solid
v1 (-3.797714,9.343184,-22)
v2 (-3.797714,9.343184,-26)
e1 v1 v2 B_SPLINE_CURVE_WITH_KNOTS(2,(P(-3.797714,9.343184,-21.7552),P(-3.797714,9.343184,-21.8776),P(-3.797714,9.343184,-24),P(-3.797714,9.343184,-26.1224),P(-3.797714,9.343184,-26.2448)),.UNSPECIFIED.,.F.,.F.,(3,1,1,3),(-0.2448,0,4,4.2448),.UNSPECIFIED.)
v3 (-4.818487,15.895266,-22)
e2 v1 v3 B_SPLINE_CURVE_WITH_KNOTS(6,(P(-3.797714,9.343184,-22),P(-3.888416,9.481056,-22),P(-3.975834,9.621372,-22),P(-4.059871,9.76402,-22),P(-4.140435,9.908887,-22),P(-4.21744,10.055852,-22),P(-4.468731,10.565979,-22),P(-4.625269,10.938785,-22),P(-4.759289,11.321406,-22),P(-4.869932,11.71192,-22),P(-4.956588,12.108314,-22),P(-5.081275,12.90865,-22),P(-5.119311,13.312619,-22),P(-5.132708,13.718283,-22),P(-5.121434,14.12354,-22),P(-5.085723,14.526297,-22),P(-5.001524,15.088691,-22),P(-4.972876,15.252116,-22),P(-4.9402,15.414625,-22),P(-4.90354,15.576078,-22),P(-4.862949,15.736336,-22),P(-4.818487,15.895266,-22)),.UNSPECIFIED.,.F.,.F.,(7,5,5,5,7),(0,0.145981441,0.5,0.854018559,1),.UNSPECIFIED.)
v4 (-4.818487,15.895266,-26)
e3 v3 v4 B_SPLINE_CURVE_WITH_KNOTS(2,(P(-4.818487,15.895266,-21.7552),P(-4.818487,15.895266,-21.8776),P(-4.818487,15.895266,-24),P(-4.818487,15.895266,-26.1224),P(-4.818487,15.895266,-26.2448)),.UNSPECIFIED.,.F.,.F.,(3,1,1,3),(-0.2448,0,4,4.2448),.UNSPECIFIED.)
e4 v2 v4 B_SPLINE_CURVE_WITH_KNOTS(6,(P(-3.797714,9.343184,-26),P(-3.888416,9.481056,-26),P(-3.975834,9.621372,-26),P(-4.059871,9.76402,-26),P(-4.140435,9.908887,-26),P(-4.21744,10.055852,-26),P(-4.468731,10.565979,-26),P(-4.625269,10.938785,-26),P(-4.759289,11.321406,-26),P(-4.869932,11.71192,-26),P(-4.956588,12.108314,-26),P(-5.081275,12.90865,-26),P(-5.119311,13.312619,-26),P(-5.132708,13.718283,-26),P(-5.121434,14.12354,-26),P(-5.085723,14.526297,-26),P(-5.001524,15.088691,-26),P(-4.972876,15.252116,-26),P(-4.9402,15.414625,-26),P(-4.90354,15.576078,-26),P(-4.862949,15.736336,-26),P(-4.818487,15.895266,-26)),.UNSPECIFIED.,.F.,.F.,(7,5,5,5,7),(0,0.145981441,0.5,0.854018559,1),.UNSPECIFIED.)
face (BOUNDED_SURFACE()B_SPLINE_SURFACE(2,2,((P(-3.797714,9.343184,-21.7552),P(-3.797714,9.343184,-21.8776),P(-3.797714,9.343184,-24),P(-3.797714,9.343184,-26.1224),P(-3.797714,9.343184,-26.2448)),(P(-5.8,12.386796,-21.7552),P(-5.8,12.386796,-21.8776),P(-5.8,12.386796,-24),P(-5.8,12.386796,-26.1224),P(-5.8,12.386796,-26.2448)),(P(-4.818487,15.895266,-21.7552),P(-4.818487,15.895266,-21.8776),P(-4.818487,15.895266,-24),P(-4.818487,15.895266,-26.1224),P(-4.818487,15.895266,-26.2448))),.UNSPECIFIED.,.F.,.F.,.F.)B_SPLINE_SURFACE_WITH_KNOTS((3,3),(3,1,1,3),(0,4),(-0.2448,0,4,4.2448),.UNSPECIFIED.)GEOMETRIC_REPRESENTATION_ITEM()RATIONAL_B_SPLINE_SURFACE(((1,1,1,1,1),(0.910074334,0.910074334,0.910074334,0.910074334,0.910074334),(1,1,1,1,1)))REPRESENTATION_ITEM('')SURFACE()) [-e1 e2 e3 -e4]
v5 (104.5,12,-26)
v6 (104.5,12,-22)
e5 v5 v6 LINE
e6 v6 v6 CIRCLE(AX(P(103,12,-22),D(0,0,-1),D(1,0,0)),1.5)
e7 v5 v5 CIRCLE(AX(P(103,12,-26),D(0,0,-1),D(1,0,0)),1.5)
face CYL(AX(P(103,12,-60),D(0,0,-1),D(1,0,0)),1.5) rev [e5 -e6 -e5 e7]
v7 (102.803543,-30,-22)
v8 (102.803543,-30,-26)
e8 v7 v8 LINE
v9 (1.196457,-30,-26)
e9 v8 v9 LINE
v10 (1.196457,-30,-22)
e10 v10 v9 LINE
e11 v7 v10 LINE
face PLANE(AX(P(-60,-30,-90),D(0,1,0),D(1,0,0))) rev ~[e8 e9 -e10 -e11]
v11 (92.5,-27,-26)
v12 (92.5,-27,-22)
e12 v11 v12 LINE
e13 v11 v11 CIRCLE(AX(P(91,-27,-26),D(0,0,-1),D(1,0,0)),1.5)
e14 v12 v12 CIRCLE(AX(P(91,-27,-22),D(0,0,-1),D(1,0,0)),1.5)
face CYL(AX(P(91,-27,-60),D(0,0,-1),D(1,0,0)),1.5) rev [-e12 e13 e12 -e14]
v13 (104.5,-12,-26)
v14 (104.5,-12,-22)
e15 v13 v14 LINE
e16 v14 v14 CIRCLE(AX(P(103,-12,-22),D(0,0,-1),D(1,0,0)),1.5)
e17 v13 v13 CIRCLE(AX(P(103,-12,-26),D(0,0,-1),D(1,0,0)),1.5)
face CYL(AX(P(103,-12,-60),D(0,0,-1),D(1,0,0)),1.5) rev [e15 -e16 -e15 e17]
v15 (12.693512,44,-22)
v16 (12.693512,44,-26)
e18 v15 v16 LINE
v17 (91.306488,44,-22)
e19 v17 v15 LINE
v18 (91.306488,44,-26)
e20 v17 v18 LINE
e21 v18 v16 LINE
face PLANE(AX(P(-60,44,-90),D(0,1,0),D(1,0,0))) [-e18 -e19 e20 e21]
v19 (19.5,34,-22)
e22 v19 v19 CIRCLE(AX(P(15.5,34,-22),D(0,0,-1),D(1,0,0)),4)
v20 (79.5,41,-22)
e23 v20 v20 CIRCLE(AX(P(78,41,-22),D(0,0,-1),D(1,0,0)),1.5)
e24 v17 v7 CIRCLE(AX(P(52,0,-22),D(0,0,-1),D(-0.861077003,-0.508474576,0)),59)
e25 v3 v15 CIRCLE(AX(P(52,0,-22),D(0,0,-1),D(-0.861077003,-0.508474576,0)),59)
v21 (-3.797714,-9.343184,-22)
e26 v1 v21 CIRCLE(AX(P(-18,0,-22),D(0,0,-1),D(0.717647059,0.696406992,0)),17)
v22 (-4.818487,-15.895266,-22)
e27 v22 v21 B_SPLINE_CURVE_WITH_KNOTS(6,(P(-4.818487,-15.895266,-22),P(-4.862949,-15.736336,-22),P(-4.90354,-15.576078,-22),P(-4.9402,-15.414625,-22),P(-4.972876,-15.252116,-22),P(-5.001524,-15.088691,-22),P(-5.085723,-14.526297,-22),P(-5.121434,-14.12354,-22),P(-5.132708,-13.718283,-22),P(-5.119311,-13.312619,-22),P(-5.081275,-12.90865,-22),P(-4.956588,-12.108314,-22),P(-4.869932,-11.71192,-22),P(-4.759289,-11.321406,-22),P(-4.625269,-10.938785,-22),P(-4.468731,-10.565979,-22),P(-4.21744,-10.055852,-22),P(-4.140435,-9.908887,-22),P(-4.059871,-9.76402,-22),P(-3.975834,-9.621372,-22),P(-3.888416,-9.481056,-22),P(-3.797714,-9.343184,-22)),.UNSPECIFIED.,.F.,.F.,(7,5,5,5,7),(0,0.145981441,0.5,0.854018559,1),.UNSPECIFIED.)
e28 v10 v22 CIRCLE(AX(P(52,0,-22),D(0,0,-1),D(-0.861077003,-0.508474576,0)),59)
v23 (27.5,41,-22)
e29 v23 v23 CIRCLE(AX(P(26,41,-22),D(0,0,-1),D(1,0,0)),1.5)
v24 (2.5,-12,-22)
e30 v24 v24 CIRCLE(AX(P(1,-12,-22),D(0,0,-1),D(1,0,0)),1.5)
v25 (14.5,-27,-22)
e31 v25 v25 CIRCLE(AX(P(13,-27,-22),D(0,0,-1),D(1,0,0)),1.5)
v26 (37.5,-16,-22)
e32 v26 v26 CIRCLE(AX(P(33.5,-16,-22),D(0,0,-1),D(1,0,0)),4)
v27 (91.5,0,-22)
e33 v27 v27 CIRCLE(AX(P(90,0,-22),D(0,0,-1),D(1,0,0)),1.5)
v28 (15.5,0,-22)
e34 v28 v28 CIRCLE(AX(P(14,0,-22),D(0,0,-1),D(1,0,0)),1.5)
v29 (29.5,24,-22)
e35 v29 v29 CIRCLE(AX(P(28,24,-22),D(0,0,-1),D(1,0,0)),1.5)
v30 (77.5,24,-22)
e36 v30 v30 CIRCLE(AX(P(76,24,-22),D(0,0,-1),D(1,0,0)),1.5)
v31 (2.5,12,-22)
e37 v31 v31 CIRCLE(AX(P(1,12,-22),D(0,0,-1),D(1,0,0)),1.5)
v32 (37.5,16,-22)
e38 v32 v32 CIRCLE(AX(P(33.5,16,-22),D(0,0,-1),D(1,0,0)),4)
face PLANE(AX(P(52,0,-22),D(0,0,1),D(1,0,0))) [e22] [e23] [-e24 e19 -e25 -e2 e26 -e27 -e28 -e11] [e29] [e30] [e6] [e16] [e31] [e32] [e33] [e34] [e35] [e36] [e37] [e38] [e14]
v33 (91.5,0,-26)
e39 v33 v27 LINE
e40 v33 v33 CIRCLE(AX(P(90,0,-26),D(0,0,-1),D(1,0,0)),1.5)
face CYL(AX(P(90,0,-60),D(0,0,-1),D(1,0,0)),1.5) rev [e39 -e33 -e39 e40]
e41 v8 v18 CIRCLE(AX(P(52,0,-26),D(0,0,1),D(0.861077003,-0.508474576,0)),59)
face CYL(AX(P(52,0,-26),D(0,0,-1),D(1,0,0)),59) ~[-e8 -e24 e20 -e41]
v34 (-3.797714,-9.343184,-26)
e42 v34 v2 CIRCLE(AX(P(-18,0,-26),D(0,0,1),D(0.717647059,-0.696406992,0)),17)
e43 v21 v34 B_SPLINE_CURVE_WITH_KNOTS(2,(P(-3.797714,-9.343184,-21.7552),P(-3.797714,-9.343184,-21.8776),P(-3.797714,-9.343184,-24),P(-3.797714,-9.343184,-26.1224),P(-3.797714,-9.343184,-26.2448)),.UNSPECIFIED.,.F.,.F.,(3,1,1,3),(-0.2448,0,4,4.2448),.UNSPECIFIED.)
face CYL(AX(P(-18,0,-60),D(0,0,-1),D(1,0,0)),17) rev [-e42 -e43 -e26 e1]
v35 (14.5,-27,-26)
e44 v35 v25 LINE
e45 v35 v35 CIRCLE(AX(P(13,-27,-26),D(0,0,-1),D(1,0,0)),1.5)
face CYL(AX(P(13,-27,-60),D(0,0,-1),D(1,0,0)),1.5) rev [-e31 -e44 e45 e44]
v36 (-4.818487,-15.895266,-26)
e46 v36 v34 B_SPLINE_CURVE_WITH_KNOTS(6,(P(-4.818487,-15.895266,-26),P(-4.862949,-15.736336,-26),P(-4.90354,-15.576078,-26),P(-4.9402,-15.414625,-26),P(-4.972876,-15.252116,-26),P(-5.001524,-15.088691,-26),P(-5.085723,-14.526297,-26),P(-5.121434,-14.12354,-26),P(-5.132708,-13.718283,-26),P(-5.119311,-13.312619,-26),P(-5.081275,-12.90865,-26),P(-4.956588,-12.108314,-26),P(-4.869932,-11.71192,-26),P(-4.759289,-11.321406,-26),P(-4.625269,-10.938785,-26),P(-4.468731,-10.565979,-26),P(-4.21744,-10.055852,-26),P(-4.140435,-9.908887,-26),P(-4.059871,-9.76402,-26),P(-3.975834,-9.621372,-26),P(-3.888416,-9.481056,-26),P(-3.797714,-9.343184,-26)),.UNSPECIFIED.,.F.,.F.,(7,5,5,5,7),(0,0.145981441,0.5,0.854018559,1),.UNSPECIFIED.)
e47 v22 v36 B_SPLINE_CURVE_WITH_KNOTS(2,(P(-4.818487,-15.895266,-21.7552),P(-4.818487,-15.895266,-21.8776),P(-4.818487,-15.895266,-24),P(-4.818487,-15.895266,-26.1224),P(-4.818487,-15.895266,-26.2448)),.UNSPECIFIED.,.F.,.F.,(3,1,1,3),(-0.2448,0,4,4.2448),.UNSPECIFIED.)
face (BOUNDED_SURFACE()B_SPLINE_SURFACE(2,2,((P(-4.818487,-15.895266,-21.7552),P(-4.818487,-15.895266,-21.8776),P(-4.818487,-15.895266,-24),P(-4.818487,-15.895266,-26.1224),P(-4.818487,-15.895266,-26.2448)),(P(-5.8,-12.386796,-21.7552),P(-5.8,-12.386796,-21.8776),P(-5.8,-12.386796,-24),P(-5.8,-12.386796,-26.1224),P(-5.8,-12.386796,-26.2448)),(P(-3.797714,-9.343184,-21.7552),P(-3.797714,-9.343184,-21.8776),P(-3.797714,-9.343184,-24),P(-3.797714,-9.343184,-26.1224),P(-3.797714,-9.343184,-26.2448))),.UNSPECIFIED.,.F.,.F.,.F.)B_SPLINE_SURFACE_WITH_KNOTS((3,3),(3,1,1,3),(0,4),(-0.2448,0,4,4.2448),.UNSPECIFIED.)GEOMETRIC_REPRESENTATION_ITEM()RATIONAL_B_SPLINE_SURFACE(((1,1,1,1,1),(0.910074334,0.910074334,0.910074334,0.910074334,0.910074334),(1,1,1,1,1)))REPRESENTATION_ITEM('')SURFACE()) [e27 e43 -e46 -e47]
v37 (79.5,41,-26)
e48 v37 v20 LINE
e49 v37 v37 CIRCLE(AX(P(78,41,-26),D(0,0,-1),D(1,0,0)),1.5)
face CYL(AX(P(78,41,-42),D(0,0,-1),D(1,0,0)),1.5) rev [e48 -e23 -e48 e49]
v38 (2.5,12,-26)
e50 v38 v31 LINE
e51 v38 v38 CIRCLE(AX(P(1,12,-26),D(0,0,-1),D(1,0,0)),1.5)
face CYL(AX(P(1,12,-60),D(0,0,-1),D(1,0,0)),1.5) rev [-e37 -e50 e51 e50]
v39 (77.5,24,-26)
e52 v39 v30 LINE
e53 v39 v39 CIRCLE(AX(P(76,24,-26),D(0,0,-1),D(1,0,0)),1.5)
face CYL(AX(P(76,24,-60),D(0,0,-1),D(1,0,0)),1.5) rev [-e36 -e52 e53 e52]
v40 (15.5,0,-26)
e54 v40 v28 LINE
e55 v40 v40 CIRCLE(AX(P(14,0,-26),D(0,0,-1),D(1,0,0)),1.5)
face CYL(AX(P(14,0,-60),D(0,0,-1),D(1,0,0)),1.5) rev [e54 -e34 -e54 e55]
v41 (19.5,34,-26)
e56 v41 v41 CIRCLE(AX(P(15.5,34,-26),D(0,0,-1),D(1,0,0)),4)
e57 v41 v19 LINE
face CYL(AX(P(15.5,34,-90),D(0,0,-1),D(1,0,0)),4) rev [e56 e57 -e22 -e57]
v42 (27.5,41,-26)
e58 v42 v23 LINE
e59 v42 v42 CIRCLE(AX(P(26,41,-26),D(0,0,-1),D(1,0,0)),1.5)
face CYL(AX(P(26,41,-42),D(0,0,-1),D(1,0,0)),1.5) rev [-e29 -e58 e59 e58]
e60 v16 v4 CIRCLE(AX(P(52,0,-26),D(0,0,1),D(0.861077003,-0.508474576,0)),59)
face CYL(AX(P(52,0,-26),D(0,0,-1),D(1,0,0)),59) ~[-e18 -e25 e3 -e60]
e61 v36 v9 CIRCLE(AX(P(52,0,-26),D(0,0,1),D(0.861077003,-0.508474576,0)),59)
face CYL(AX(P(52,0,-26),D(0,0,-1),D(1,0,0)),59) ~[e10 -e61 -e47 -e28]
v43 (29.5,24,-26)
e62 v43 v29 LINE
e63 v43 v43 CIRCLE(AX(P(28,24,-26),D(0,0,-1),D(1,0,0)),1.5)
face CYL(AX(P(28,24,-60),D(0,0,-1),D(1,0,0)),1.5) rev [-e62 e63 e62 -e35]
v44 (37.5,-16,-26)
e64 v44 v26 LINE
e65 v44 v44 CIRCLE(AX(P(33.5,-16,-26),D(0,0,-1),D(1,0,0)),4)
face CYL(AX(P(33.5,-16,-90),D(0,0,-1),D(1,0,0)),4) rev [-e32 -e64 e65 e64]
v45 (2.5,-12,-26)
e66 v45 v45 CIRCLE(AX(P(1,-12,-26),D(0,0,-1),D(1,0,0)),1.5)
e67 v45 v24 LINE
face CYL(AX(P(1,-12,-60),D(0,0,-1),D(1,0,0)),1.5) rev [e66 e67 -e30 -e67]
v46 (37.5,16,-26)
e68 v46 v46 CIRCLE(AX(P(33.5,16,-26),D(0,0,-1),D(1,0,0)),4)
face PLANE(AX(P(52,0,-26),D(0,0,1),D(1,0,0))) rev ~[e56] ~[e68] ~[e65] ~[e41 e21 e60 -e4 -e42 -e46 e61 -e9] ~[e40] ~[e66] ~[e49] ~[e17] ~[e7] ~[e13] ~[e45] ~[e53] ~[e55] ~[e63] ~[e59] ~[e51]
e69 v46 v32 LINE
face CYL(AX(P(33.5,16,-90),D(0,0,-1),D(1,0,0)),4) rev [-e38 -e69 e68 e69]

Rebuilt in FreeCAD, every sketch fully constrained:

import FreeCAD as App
import Part
import Sketcher
from FreeCAD import Vector


def edges_at(feature, points):
    """Names of the edges that pass closest to the given points."""
    edges = feature.Shape.Edges
    near = lambda p: min(range(len(edges)), key=lambda i: edges[i].distToShape(Part.Vertex(*p))[0])
    return sorted({f"Edge{near(p) + 1}" for p in points})

doc = App.newDocument("Part")
body = doc.addObject("PartDesign::Body", "Body")

sketch1 = body.newObject("Sketcher::SketchObject", "Sketch")
sketch1.AttachmentSupport = (doc.getObject("XY_Plane"), [""])
sketch1.MapMode = "FlatFace"
sketch1.AttachmentOffset = App.Placement(Vector(0, 0, -60), App.Rotation())
sketch1.addGeometry(Part.Circle(Vector(-18, 0, 0), Vector(0, 0, 1), 17), False)
sketch1.addConstraint([
    Sketcher.Constraint("PointOnObject", 0, 3, -1),
    Sketcher.Constraint("Diameter", 0, 34.0),
    Sketcher.Constraint("DistanceX", 0, 3, -1, 1, 18.0),
])
pad1 = body.newObject("PartDesign::Pad", "Pad")
pad1.Profile = sketch1
pad1.Length = 160
body2 = doc.addObject("PartDesign::Body", "Body001")

sketch2 = body2.newObject("Sketcher::SketchObject", "Sketch001")
sketch2.AttachmentSupport = (doc.getObject("XY_Plane001"), [""])
sketch2.MapMode = "FlatFace"
sketch2.AttachmentOffset = App.Placement(Vector(0, 0, -60), App.Rotation())
sketch2.addGeometry(Part.Circle(Vector(14, 0, 0), Vector(0, 0, 1), 1.5), False)
sketch2.addConstraint([
    Sketcher.Constraint("PointOnObject", 0, 3, -1),
    Sketcher.Constraint("Diameter", 0, 3.0),
    Sketcher.Constraint("DistanceX", -1, 1, 0, 3, 14.0),
])
pad2 = body2.newObject("PartDesign::Pad", "Pad001")
pad2.Profile = sketch2
pad2.Length = 100
body3 = doc.addObject("PartDesign::Body", "Body002")
body3.AllowCompound = True

sketch3 = body3.newObject("Sketcher::SketchObject", "Sketch002")
sketch3.AttachmentSupport = (doc.getObject("XY_Plane002"), [""])
sketch3.MapMode = "FlatFace"
sketch3.AttachmentOffset = App.Placement(Vector(0, 0, -60), App.Rotation())
sketch3.addGeometry(Part.Circle(Vector(90, 0, 0), Vector(0, 0, 1), 1.5), False)
sketch3.addConstraint([
    Sketcher.Constraint("PointOnObject", 0, 3, -1),
    Sketcher.Constraint("Diameter", 0, 3.0),
    Sketcher.Constraint("DistanceX", -1, 1, 0, 3, 90.0),
])
pad3 = body3.newObject("PartDesign::Pad", "Pad002")
pad3.Profile = sketch3
pad3.Length = 100
doc.recompute()

boolean = body3.newObject("PartDesign::Boolean", "Boolean")
boolean.Type = "Fuse"
boolean.addObjects([body2])
body4 = doc.addObject("PartDesign::Body", "Body003")

sketch4 = body4.newObject("Sketcher::SketchObject", "Sketch003")
sketch4.AttachmentSupport = (doc.getObject("XY_Plane003"), [""])
sketch4.MapMode = "FlatFace"
sketch4.AttachmentOffset = App.Placement(Vector(0, 0, -42), App.Rotation())
sketch4.addGeometry(Part.Circle(Vector(78, 41, 0), Vector(0, 0, 1), 1.5), False)
sketch4.addConstraint([
    Sketcher.Constraint("Diameter", 0, 3.0),
    Sketcher.Constraint("DistanceX", -1, 1, 0, 3, 78.0),
    Sketcher.Constraint("DistanceY", -1, 1, 0, 3, 41.0),
])
pad4 = body4.newObject("PartDesign::Pad", "Pad003")
pad4.Profile = sketch4
pad4.Length = 32
body5 = doc.addObject("PartDesign::Body", "Body004")
body5.AllowCompound = True

sketch5 = body5.newObject("Sketcher::SketchObject", "Sketch004")
sketch5.AttachmentSupport = (doc.getObject("XY_Plane004"), [""])
sketch5.MapMode = "FlatFace"
sketch5.AttachmentOffset = App.Placement(Vector(0, 0, -42), App.Rotation())
sketch5.addGeometry(Part.Circle(Vector(26, 41, 0), Vector(0, 0, 1), 1.5), False)
sketch5.addConstraint([
    Sketcher.Constraint("Diameter", 0, 3.0),
    Sketcher.Constraint("DistanceX", -1, 1, 0, 3, 26.0),
    Sketcher.Constraint("DistanceY", -1, 1, 0, 3, 41.0),
])
pad5 = body5.newObject("PartDesign::Pad", "Pad004")
pad5.Profile = sketch5
pad5.Length = 32
doc.recompute()

boolean2 = body5.newObject("PartDesign::Boolean", "Boolean001")
boolean2.Type = "Fuse"
boolean2.addObjects([body4])
body6 = doc.addObject("PartDesign::Body", "Body005")

sketch6 = body6.newObject("Sketcher::SketchObject", "Sketch005")
sketch6.AttachmentSupport = (doc.getObject("XY_Plane005"), [""])
sketch6.MapMode = "FlatFace"
sketch6.AttachmentOffset = App.Placement(Vector(0, 0, -90), App.Rotation())
sketch6.addGeometry([
    Part.LineSegment(Vector(-60, 144, 0), Vector(-60, 44, 0)),
    Part.LineSegment(Vector(-60, 44, 0), Vector(140, 44, 0)),
    Part.LineSegment(Vector(140, 44, 0), Vector(140, 144, 0)),
    Part.LineSegment(Vector(140, 144, 0), Vector(-60, 144, 0)),
], False)
sketch6.addConstraint([
    Sketcher.Constraint("Coincident", 0, 2, 1, 1),
    Sketcher.Constraint("Coincident", 1, 2, 2, 1),
    Sketcher.Constraint("Coincident", 2, 2, 3, 1),
    Sketcher.Constraint("Coincident", 3, 2, 0, 1),
    Sketcher.Constraint("Vertical", 0),
    Sketcher.Constraint("Horizontal", 1),
    Sketcher.Constraint("Vertical", 2),
    Sketcher.Constraint("Horizontal", 3),
    Sketcher.Constraint("DistanceX", 1, 1, 1, 2, 200.0),
    Sketcher.Constraint("DistanceY", 0, 2, 0, 1, 100.0),
    Sketcher.Constraint("DistanceX", 0, 2, -1, 1, 60.0),
    Sketcher.Constraint("DistanceY", -1, 1, 0, 2, 44.0),
])
pad6 = body6.newObject("PartDesign::Pad", "Pad005")
pad6.Profile = sketch6
pad6.Length = 100
body7 = doc.addObject("PartDesign::Body", "Body006")

sketch7 = body7.newObject("Sketcher::SketchObject", "Sketch006")
sketch7.AttachmentSupport = (doc.getObject("XY_Plane006"), [""])
sketch7.MapMode = "FlatFace"
sketch7.AttachmentOffset = App.Placement(Vector(0, 0, -90), App.Rotation())
sketch7.addGeometry([
    Part.LineSegment(Vector(-60, -30, 0), Vector(-60, -130, 0)),
    Part.LineSegment(Vector(-60, -130, 0), Vector(140, -130, 0)),
    Part.LineSegment(Vector(140, -130, 0), Vector(140, -30, 0)),
    Part.LineSegment(Vector(140, -30, 0), Vector(-60, -30, 0)),
], False)
sketch7.addConstraint([
    Sketcher.Constraint("Coincident", 0, 2, 1, 1),
    Sketcher.Constraint("Coincident", 1, 2, 2, 1),
    Sketcher.Constraint("Coincident", 2, 2, 3, 1),
    Sketcher.Constraint("Coincident", 3, 2, 0, 1),
    Sketcher.Constraint("Vertical", 0),
    Sketcher.Constraint("Horizontal", 1),
    Sketcher.Constraint("Vertical", 2),
    Sketcher.Constraint("Horizontal", 3),
    Sketcher.Constraint("DistanceX", 1, 1, 1, 2, 200.0),
    Sketcher.Constraint("DistanceY", 0, 2, 0, 1, 100.0),
    Sketcher.Constraint("DistanceX", 0, 2, -1, 1, 60.0),
    Sketcher.Constraint("DistanceY", 0, 2, -1, 1, 130.0),
])
pad7 = body7.newObject("PartDesign::Pad", "Pad006")
pad7.Profile = sketch7
pad7.Length = 100
body8 = doc.addObject("PartDesign::Body", "Body007")

sketch8 = body8.newObject("Sketcher::SketchObject", "Sketch007")
sketch8.AttachmentSupport = (doc.getObject("XY_Plane007"), [""])
sketch8.MapMode = "FlatFace"
sketch8.AttachmentOffset = App.Placement(Vector(0, 0, -90), App.Rotation())
sketch8.addGeometry(Part.Circle(Vector(-16, 34, 0), Vector(0, 0, 1), 4), False)
sketch8.addConstraint([
    Sketcher.Constraint("Diameter", 0, 8.0),
    Sketcher.Constraint("DistanceX", 0, 3, -1, 1, 16.0),
    Sketcher.Constraint("DistanceY", -1, 1, 0, 3, 34.0),
])
pad8 = body8.newObject("PartDesign::Pad", "Pad007")
pad8.Profile = sketch8
pad8.Length = 100
body9 = doc.addObject("PartDesign::Body", "Body008")

sketch9 = body9.newObject("Sketcher::SketchObject", "Sketch008")
sketch9.AttachmentSupport = (doc.getObject("XY_Plane008"), [""])
sketch9.MapMode = "FlatFace"
sketch9.AttachmentOffset = App.Placement(Vector(0, 0, -90), App.Rotation())
sketch9.addGeometry(Part.Circle(Vector(-16, -34, 0), Vector(0, 0, 1), 4), False)
sketch9.addConstraint([
    Sketcher.Constraint("Diameter", 0, 8.0),
    Sketcher.Constraint("DistanceX", 0, 3, -1, 1, 16.0),
    Sketcher.Constraint("DistanceY", 0, 3, -1, 1, 34.0),
])
pad9 = body9.newObject("PartDesign::Pad", "Pad008")
pad9.Profile = sketch9
pad9.Length = 100
body10 = doc.addObject("PartDesign::Body", "Body009")

sketch10 = body10.newObject("Sketcher::SketchObject", "Sketch009")
sketch10.AttachmentSupport = (doc.getObject("XY_Plane009"), [""])
sketch10.MapMode = "FlatFace"
sketch10.AttachmentOffset = App.Placement(Vector(0, 0, -90), App.Rotation())
sketch10.addGeometry(Part.Circle(Vector(34, -16, 0), Vector(0, 0, 1), 4), False)
sketch10.addConstraint([
    Sketcher.Constraint("Diameter", 0, 8.0),
    Sketcher.Constraint("DistanceX", -1, 1, 0, 3, 34.0),
    Sketcher.Constraint("DistanceY", 0, 3, -1, 1, 16.0),
])
pad10 = body10.newObject("PartDesign::Pad", "Pad009")
pad10.Profile = sketch10
pad10.Length = 100
body11 = doc.addObject("PartDesign::Body", "Body010")

sketch11 = body11.newObject("Sketcher::SketchObject", "Sketch010")
sketch11.AttachmentSupport = (doc.getObject("XY_Plane010"), [""])
sketch11.MapMode = "FlatFace"
sketch11.AttachmentOffset = App.Placement(Vector(0, 0, -90), App.Rotation())
sketch11.addGeometry(Part.Circle(Vector(16, 34, 0), Vector(0, 0, 1), 4), False)
sketch11.addConstraint([
    Sketcher.Constraint("Diameter", 0, 8.0),
    Sketcher.Constraint("DistanceX", -1, 1, 0, 3, 16.0),
    Sketcher.Constraint("DistanceY", -1, 1, 0, 3, 34.0),
])
pad11 = body11.newObject("PartDesign::Pad", "Pad010")
pad11.Profile = sketch11
pad11.Length = 100
body12 = doc.addObject("PartDesign::Body", "Body011")

sketch12 = body12.newObject("Sketcher::SketchObject", "Sketch011")
sketch12.AttachmentSupport = (doc.getObject("XY_Plane011"), [""])
sketch12.MapMode = "FlatFace"
sketch12.AttachmentOffset = App.Placement(Vector(0, 0, -90), App.Rotation())
sketch12.addGeometry(Part.Circle(Vector(16, -34, 0), Vector(0, 0, 1), 4), False)
sketch12.addConstraint([
    Sketcher.Constraint("Diameter", 0, 8.0),
    Sketcher.Constraint("DistanceX", -1, 1, 0, 3, 16.0),
    Sketcher.Constraint("DistanceY", 0, 3, -1, 1, 34.0),
])
pad12 = body12.newObject("PartDesign::Pad", "Pad011")
pad12.Profile = sketch12
pad12.Length = 100
body13 = doc.addObject("PartDesign::Body", "Body012")

sketch13 = body13.newObject("Sketcher::SketchObject", "Sketch012")
sketch13.AttachmentSupport = (doc.getObject("XY_Plane012"), [""])
sketch13.MapMode = "FlatFace"
sketch13.AttachmentOffset = App.Placement(Vector(0, 0, -90), App.Rotation())
sketch13.addGeometry(Part.Circle(Vector(-34, 16, 0), Vector(0, 0, 1), 4), False)
sketch13.addConstraint([
    Sketcher.Constraint("Diameter", 0, 8.0),
    Sketcher.Constraint("DistanceX", 0, 3, -1, 1, 34.0),
    Sketcher.Constraint("DistanceY", -1, 1, 0, 3, 16.0),
])
pad13 = body13.newObject("PartDesign::Pad", "Pad012")
pad13.Profile = sketch13
pad13.Length = 100
body14 = doc.addObject("PartDesign::Body", "Body013")

sketch14 = body14.newObject("Sketcher::SketchObject", "Sketch013")
sketch14.AttachmentSupport = (doc.getObject("XY_Plane013"), [""])
sketch14.MapMode = "FlatFace"
sketch14.AttachmentOffset = App.Placement(Vector(0, 0, -90), App.Rotation())
sketch14.addGeometry(Part.Circle(Vector(34, 16, 0), Vector(0, 0, 1), 4), False)
sketch14.addConstraint([
    Sketcher.Constraint("Diameter", 0, 8.0),
    Sketcher.Constraint("DistanceX", -1, 1, 0, 3, 34.0),
    Sketcher.Constraint("DistanceY", -1, 1, 0, 3, 16.0),
])
pad14 = body14.newObject("PartDesign::Pad", "Pad013")
pad14.Profile = sketch14
pad14.Length = 100
body15 = doc.addObject("PartDesign::Body", "Body014")
body15.AllowCompound = True

sketch15 = body15.newObject("Sketcher::SketchObject", "Sketch014")
sketch15.AttachmentSupport = (doc.getObject("XY_Plane014"), [""])
sketch15.MapMode = "FlatFace"
sketch15.AttachmentOffset = App.Placement(Vector(0, 0, -90), App.Rotation())
sketch15.addGeometry(Part.Circle(Vector(-34, -16, 0), Vector(0, 0, 1), 4), False)
sketch15.addConstraint([
    Sketcher.Constraint("Diameter", 0, 8.0),
    Sketcher.Constraint("DistanceX", 0, 3, -1, 1, 34.0),
    Sketcher.Constraint("DistanceY", 0, 3, -1, 1, 16.0),
])
pad15 = body15.newObject("PartDesign::Pad", "Pad014")
pad15.Profile = sketch15
pad15.Length = 100
doc.recompute()

boolean3 = body15.newObject("PartDesign::Boolean", "Boolean002")
boolean3.Type = "Fuse"
boolean3.addObjects([body8])
doc.recompute()

boolean4 = body15.newObject("PartDesign::Boolean", "Boolean003")
boolean4.Type = "Fuse"
boolean4.addObjects([body9])
doc.recompute()

boolean5 = body15.newObject("PartDesign::Boolean", "Boolean004")
boolean5.Type = "Fuse"
boolean5.addObjects([body10])
doc.recompute()

boolean6 = body15.newObject("PartDesign::Boolean", "Boolean005")
boolean6.Type = "Fuse"
boolean6.addObjects([body11])
doc.recompute()

boolean7 = body15.newObject("PartDesign::Boolean", "Boolean006")
boolean7.Type = "Fuse"
boolean7.addObjects([body12])
doc.recompute()

boolean8 = body15.newObject("PartDesign::Boolean", "Boolean007")
boolean8.Type = "Fuse"
boolean8.addObjects([body13])
doc.recompute()

boolean9 = body15.newObject("PartDesign::Boolean", "Boolean008")
boolean9.Type = "Fuse"
boolean9.addObjects([body14])
body16 = doc.addObject("PartDesign::Body", "Body015")
body16.AllowCompound = True
doc.recompute()

body15.Placement = App.Placement(Vector(-0.5, 0, 0), App.Rotation(Vector(0, 0, 1), 0))
boolean10 = body16.newObject("PartDesign::Boolean", "Boolean009")
boolean10.Type = "Fuse"
boolean10.addObjects([body15])
body17 = doc.addObject("PartDesign::Body", "Body016")

sketch16 = body17.newObject("Sketcher::SketchObject", "Sketch015")
sketch16.AttachmentSupport = (doc.getObject("XY_Plane016"), [""])
sketch16.MapMode = "FlatFace"
sketch16.AttachmentOffset = App.Placement(Vector(0, 0, -60), App.Rotation())
sketch16.addGeometry(Part.Circle(Vector(103, 12, 0), Vector(0, 0, 1), 1.5), False)
sketch16.addConstraint([
    Sketcher.Constraint("Diameter", 0, 3.0),
    Sketcher.Constraint("DistanceX", -1, 1, 0, 3, 103.0),
    Sketcher.Constraint("DistanceY", -1, 1, 0, 3, 12.0),
])
pad16 = body17.newObject("PartDesign::Pad", "Pad015")
pad16.Profile = sketch16
pad16.Length = 100
body18 = doc.addObject("PartDesign::Body", "Body017")

sketch17 = body18.newObject("Sketcher::SketchObject", "Sketch016")
sketch17.AttachmentSupport = (doc.getObject("XY_Plane017"), [""])
sketch17.MapMode = "FlatFace"
sketch17.AttachmentOffset = App.Placement(Vector(0, 0, -60), App.Rotation())
sketch17.addGeometry(Part.Circle(Vector(76, 24, 0), Vector(0, 0, 1), 1.5), False)
sketch17.addConstraint([
    Sketcher.Constraint("Diameter", 0, 3.0),
    Sketcher.Constraint("DistanceX", -1, 1, 0, 3, 76.0),
    Sketcher.Constraint("DistanceY", -1, 1, 0, 3, 24.0),
])
pad17 = body18.newObject("PartDesign::Pad", "Pad016")
pad17.Profile = sketch17
pad17.Length = 100
body19 = doc.addObject("PartDesign::Body", "Body018")

sketch18 = body19.newObject("Sketcher::SketchObject", "Sketch017")
sketch18.AttachmentSupport = (doc.getObject("XY_Plane018"), [""])
sketch18.MapMode = "FlatFace"
sketch18.AttachmentOffset = App.Placement(Vector(0, 0, -60), App.Rotation())
sketch18.addGeometry(Part.Circle(Vector(91, -27, 0), Vector(0, 0, 1), 1.5), False)
sketch18.addConstraint([
    Sketcher.Constraint("Diameter", 0, 3.0),
    Sketcher.Constraint("DistanceX", -1, 1, 0, 3, 91.0),
    Sketcher.Constraint("DistanceY", 0, 3, -1, 1, 27.0),
])
pad18 = body19.newObject("PartDesign::Pad", "Pad017")
pad18.Profile = sketch18
pad18.Length = 100
body20 = doc.addObject("PartDesign::Body", "Body019")

sketch19 = body20.newObject("Sketcher::SketchObject", "Sketch018")
sketch19.AttachmentSupport = (doc.getObject("XY_Plane019"), [""])
sketch19.MapMode = "FlatFace"
sketch19.AttachmentOffset = App.Placement(Vector(0, 0, -60), App.Rotation())
sketch19.addGeometry(Part.Circle(Vector(13, -27, 0), Vector(0, 0, 1), 1.5), False)
sketch19.addConstraint([
    Sketcher.Constraint("Diameter", 0, 3.0),
    Sketcher.Constraint("DistanceX", -1, 1, 0, 3, 13.0),
    Sketcher.Constraint("DistanceY", 0, 3, -1, 1, 27.0),
])
pad19 = body20.newObject("PartDesign::Pad", "Pad018")
pad19.Profile = sketch19
pad19.Length = 100
body21 = doc.addObject("PartDesign::Body", "Body020")

sketch20 = body21.newObject("Sketcher::SketchObject", "Sketch019")
sketch20.AttachmentSupport = (doc.getObject("XY_Plane020"), [""])
sketch20.MapMode = "FlatFace"
sketch20.AttachmentOffset = App.Placement(Vector(0, 0, -60), App.Rotation())
sketch20.addGeometry(Part.Circle(Vector(28, 24, 0), Vector(0, 0, 1), 1.5), False)
sketch20.addConstraint([
    Sketcher.Constraint("Diameter", 0, 3.0),
    Sketcher.Constraint("DistanceX", -1, 1, 0, 3, 28.0),
    Sketcher.Constraint("DistanceY", -1, 1, 0, 3, 24.0),
])
pad20 = body21.newObject("PartDesign::Pad", "Pad019")
pad20.Profile = sketch20
pad20.Length = 100
body22 = doc.addObject("PartDesign::Body", "Body021")

sketch21 = body22.newObject("Sketcher::SketchObject", "Sketch020")
sketch21.AttachmentSupport = (doc.getObject("XY_Plane021"), [""])
sketch21.MapMode = "FlatFace"
sketch21.AttachmentOffset = App.Placement(Vector(0, 0, -60), App.Rotation())
sketch21.addGeometry(Part.Circle(Vector(1, -12, 0), Vector(0, 0, 1), 1.5), False)
sketch21.addConstraint([
    Sketcher.Constraint("Diameter", 0, 3.0),
    Sketcher.Constraint("DistanceX", -1, 1, 0, 3, 1.0),
    Sketcher.Constraint("DistanceY", 0, 3, -1, 1, 12.0),
])
pad21 = body22.newObject("PartDesign::Pad", "Pad020")
pad21.Profile = sketch21
pad21.Length = 100
body23 = doc.addObject("PartDesign::Body", "Body022")

sketch22 = body23.newObject("Sketcher::SketchObject", "Sketch021")
sketch22.AttachmentSupport = (doc.getObject("XY_Plane022"), [""])
sketch22.MapMode = "FlatFace"
sketch22.AttachmentOffset = App.Placement(Vector(0, 0, -60), App.Rotation())
sketch22.addGeometry(Part.Circle(Vector(1, 12, 0), Vector(0, 0, 1), 1.5), False)
sketch22.addConstraint([
    Sketcher.Constraint("Diameter", 0, 3.0),
    Sketcher.Constraint("DistanceX", -1, 1, 0, 3, 1.0),
    Sketcher.Constraint("DistanceY", -1, 1, 0, 3, 12.0),
])
pad22 = body23.newObject("PartDesign::Pad", "Pad021")
pad22.Profile = sketch22
pad22.Length = 100
body24 = doc.addObject("PartDesign::Body", "Body023")
body24.AllowCompound = True

sketch23 = body24.newObject("Sketcher::SketchObject", "Sketch022")
sketch23.AttachmentSupport = (doc.getObject("XY_Plane023"), [""])
sketch23.MapMode = "FlatFace"
sketch23.AttachmentOffset = App.Placement(Vector(0, 0, -60), App.Rotation())
sketch23.addGeometry(Part.Circle(Vector(103, -12, 0), Vector(0, 0, 1), 1.5), False)
sketch23.addConstraint([
    Sketcher.Constraint("Diameter", 0, 3.0),
    Sketcher.Constraint("DistanceX", -1, 1, 0, 3, 103.0),
    Sketcher.Constraint("DistanceY", 0, 3, -1, 1, 12.0),
])
pad23 = body24.newObject("PartDesign::Pad", "Pad022")
pad23.Profile = sketch23
pad23.Length = 100
doc.recompute()

boolean11 = body24.newObject("PartDesign::Boolean", "Boolean010")
boolean11.Type = "Fuse"
boolean11.addObjects([body17])
doc.recompute()

boolean12 = body24.newObject("PartDesign::Boolean", "Boolean011")
boolean12.Type = "Fuse"
boolean12.addObjects([body18])
doc.recompute()

boolean13 = body24.newObject("PartDesign::Boolean", "Boolean012")
boolean13.Type = "Fuse"
boolean13.addObjects([body19])
doc.recompute()

boolean14 = body24.newObject("PartDesign::Boolean", "Boolean013")
boolean14.Type = "Fuse"
boolean14.addObjects([body20])
doc.recompute()

boolean15 = body24.newObject("PartDesign::Boolean", "Boolean014")
boolean15.Type = "Fuse"
boolean15.addObjects([body21])
doc.recompute()

boolean16 = body24.newObject("PartDesign::Boolean", "Boolean015")
boolean16.Type = "Fuse"
boolean16.addObjects([body22])
doc.recompute()

boolean17 = body24.newObject("PartDesign::Boolean", "Boolean016")
boolean17.Type = "Fuse"
boolean17.addObjects([body23])
body25 = doc.addObject("PartDesign::Body", "Body024")

sketch24 = body25.newObject("Sketcher::SketchObject", "Sketch023")
sketch24.AttachmentSupport = (doc.getObject("XY_Plane024"), [""])
sketch24.MapMode = "FlatFace"
sketch24.AttachmentOffset = App.Placement(Vector(0, 0, -26), App.Rotation())
sketch24.addGeometry(Part.Circle(Vector(52, 0, 0), Vector(0, 0, 1), 59), False)
sketch24.addConstraint([
    Sketcher.Constraint("PointOnObject", 0, 3, -1),
    Sketcher.Constraint("Diameter", 0, 118.0),
    Sketcher.Constraint("DistanceX", -1, 1, 0, 3, 52.0),
])
pad24 = body25.newObject("PartDesign::Pad", "Pad023")
pad24.Profile = sketch24
pad24.Length = 4
doc.recompute()

boolean18 = body25.newObject("PartDesign::Boolean", "Boolean017")
boolean18.Type = "Cut"
boolean18.addObjects([body24])
doc.recompute()

boolean19 = body25.newObject("PartDesign::Boolean", "Boolean018")
boolean19.Type = "Cut"
boolean19.addObjects([body16])
doc.recompute()

boolean20 = body25.newObject("PartDesign::Boolean", "Boolean019")
boolean20.Type = "Cut"
boolean20.addObjects([body7])
doc.recompute()

boolean21 = body25.newObject("PartDesign::Boolean", "Boolean020")
boolean21.Type = "Cut"
boolean21.addObjects([body6])
doc.recompute()

boolean22 = body25.newObject("PartDesign::Boolean", "Boolean021")
boolean22.Type = "Cut"
boolean22.addObjects([body5])
doc.recompute()

boolean23 = body25.newObject("PartDesign::Boolean", "Boolean022")
boolean23.Type = "Cut"
boolean23.addObjects([body3])
doc.recompute()

boolean24 = body25.newObject("PartDesign::Boolean", "Boolean023")
boolean24.Type = "Cut"
boolean24.addObjects([body])
doc.recompute()

fillet = body25.newObject("PartDesign::Fillet", "Fillet")
fillet.Base = (boolean24, edges_at(boolean24, [(-5.8, -11.839, -24), (-5.8, 11.839, -24)]))
fillet.Radius = 8

doc.recompute()
